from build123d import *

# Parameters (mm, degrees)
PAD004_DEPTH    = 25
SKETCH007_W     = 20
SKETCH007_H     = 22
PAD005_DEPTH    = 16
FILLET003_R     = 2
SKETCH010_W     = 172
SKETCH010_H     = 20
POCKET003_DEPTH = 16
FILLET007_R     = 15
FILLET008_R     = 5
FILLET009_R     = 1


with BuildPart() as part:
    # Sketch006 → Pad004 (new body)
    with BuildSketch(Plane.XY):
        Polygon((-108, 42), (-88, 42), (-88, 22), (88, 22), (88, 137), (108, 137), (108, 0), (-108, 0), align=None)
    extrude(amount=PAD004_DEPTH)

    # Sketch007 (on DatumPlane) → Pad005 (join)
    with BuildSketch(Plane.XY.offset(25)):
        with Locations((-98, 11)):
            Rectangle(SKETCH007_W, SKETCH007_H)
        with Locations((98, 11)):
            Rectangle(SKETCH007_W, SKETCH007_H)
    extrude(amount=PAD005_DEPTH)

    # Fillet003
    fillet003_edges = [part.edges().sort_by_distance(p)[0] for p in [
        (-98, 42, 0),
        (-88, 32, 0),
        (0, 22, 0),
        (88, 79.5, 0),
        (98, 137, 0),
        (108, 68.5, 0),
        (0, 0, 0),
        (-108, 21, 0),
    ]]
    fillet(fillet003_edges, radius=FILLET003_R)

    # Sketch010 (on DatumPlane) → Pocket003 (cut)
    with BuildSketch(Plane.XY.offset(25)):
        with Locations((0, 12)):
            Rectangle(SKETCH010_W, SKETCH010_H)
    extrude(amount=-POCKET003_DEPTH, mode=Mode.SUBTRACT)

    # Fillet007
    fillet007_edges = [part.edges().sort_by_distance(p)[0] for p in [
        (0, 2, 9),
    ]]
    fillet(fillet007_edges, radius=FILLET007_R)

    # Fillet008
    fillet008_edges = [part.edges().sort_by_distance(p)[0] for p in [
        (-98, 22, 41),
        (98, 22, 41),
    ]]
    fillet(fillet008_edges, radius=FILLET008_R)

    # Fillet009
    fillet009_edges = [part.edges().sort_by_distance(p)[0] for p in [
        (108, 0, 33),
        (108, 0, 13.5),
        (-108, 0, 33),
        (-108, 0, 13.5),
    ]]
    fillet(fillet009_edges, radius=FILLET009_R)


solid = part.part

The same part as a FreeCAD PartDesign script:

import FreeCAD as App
import Part
import Sketcher
from FreeCAD import Vector
Q = App.Units.Quantity


def edges_at(feature, points):
    """Names of the edges that pass closest to the given points."""
    edges = feature.Shape.Edges
    near = lambda p: min(range(len(edges)), key=lambda i: edges[i].distToShape(Part.Vertex(*p))[0])
    return sorted({f"Edge{near(p) + 1}" for p in points})

doc = App.newDocument("Part")
body = doc.addObject("PartDesign::Body", "Body")

sketch1 = body.newObject("Sketcher::SketchObject", "Sketch")
sketch1.AttachmentSupport = (doc.getObject("XY_Plane"), [""])
sketch1.MapMode = "FlatFace"
sketch1.addGeometry([
    Part.LineSegment(Vector(-88, 42, 0), Vector(-108, 42, 0)),
    Part.LineSegment(Vector(-108, 42, 0), Vector(-108, 0, 0)),
    Part.LineSegment(Vector(-108, 0, 0), Vector(108, 0, 0)),
    Part.LineSegment(Vector(108, 0, 0), Vector(108, 137, 0)),
    Part.LineSegment(Vector(108, 137, 0), Vector(88, 137, 0)),
    Part.LineSegment(Vector(88, 137, 0), Vector(88, 22, 0)),
    Part.LineSegment(Vector(88, 22, 0), Vector(-88, 22, 0)),
    Part.LineSegment(Vector(-88, 22, 0), Vector(-88, 42, 0)),
], False)
sketch1.addConstraint([
    Sketcher.Constraint("Coincident", 0, 2, 1, 1),
    Sketcher.Constraint("Coincident", 1, 2, 2, 1),
    Sketcher.Constraint("Coincident", 2, 2, 3, 1),
    Sketcher.Constraint("Coincident", 3, 2, 4, 1),
    Sketcher.Constraint("Coincident", 4, 2, 5, 1),
    Sketcher.Constraint("Coincident", 5, 2, 6, 1),
    Sketcher.Constraint("Coincident", 6, 2, 7, 1),
    Sketcher.Constraint("Coincident", 7, 2, 0, 1),
    Sketcher.Constraint("Horizontal", 0),
    Sketcher.Constraint("Vertical", 1),
    Sketcher.Constraint("Horizontal", 2),
    Sketcher.Constraint("Vertical", 3),
    Sketcher.Constraint("Horizontal", 4),
    Sketcher.Constraint("Vertical", 5),
    Sketcher.Constraint("Horizontal", 6),
    Sketcher.Constraint("Vertical", 7),
    Sketcher.Constraint("Symmetric", 1, 2, 2, 2, -1, 1),
    Sketcher.Constraint("Equal", 0, 4),
    Sketcher.Constraint("Equal", 4, 7),
    Sketcher.Constraint("DistanceX", 0, 2, 0, 1, Q("20 mm")),
    Sketcher.Constraint("DistanceX", 2, 1, 2, 2, Q("216 mm")),
    Sketcher.Constraint("DistanceY", 1, 2, 1, 1, Q("42 mm")),
    Sketcher.Constraint("DistanceY", 3, 1, 3, 2, Q("137 mm")),
])
pad1 = body.newObject("PartDesign::Pad", "Pad")
pad1.Profile = sketch1
pad1.Length = 25

sketch2 = body.newObject("Sketcher::SketchObject", "Sketch001")
sketch2.AttachmentSupport = (doc.getObject("XY_Plane"), [""])
sketch2.MapMode = "FlatFace"
sketch2.AttachmentOffset = App.Placement(Vector(0, 0, 25), App.Rotation())
sketch2.addGeometry([
    Part.LineSegment(Vector(-108, 22, 0), Vector(-108, 0, 0)),
    Part.LineSegment(Vector(-108, 0, 0), Vector(-88, 0, 0)),
    Part.LineSegment(Vector(-88, 0, 0), Vector(-88, 22, 0)),
    Part.LineSegment(Vector(-88, 22, 0), Vector(-108, 22, 0)),
    Part.LineSegment(Vector(88, 22, 0), Vector(88, 0, 0)),
    Part.LineSegment(Vector(88, 0, 0), Vector(108, 0, 0)),
    Part.LineSegment(Vector(108, 0, 0), Vector(108, 22, 0)),
    Part.LineSegment(Vector(108, 22, 0), Vector(88, 22, 0)),
], False)
sketch2.addConstraint([
    Sketcher.Constraint("Coincident", 0, 2, 1, 1),
    Sketcher.Constraint("Coincident", 1, 2, 2, 1),
    Sketcher.Constraint("Coincident", 2, 2, 3, 1),
    Sketcher.Constraint("Coincident", 3, 2, 0, 1),
    Sketcher.Constraint("Coincident", 4, 2, 5, 1),
    Sketcher.Constraint("Coincident", 5, 2, 6, 1),
    Sketcher.Constraint("Coincident", 6, 2, 7, 1),
    Sketcher.Constraint("Coincident", 7, 2, 4, 1),
    Sketcher.Constraint("Vertical", 0),
    Sketcher.Constraint("Horizontal", 1),
    Sketcher.Constraint("Vertical", 2),
    Sketcher.Constraint("Horizontal", 3),
    Sketcher.Constraint("Vertical", 4),
    Sketcher.Constraint("Horizontal", 5),
    Sketcher.Constraint("Vertical", 6),
    Sketcher.Constraint("Horizontal", 7),
    Sketcher.Constraint("Symmetric", 1, 2, 4, 2, -1, 1),
    Sketcher.Constraint("Symmetric", 0, 2, 5, 2, -2),
    Sketcher.Constraint("Horizontal", 3, 2, 6, 2),
    Sketcher.Constraint("DistanceX", 1, 1, 1, 2, Q("20 mm")),
    Sketcher.Constraint("DistanceY", 0, 2, 0, 1, Q("22 mm")),
    Sketcher.Constraint("DistanceX", 0, 2, -1, 1, Q("108 mm")),
])
pad2 = body.newObject("PartDesign::Pad", "Pad001")
pad2.Profile = sketch2
pad2.Length = 16
doc.recompute()

fillet = body.newObject("PartDesign::Fillet", "Fillet")
fillet.Base = (pad2, edges_at(pad2, [
    (-98, 42, 0),
    (-88, 32, 0),
    (0, 22, 0),
    (88, 79.5, 0),
    (98, 137, 0),
    (108, 68.5, 0),
    (0, 0, 0),
    (-108, 21, 0),
]))
fillet.Radius = 2

sketch3 = body.newObject("Sketcher::SketchObject", "Sketch002")
sketch3.AttachmentSupport = (doc.getObject("XY_Plane"), [""])
sketch3.MapMode = "FlatFace"
sketch3.AttachmentOffset = App.Placement(Vector(0, 0, 25), App.Rotation())
sketch3.addGeometry([
    Part.LineSegment(Vector(-86, 22, 0), Vector(-86, 2, 0)),
    Part.LineSegment(Vector(-86, 2, 0), Vector(86, 2, 0)),
    Part.LineSegment(Vector(86, 2, 0), Vector(86, 22, 0)),
    Part.LineSegment(Vector(86, 22, 0), Vector(-86, 22, 0)),
], False)
sketch3.addConstraint([
    Sketcher.Constraint("Coincident", 0, 2, 1, 1),
    Sketcher.Constraint("Coincident", 1, 2, 2, 1),
    Sketcher.Constraint("Coincident", 2, 2, 3, 1),
    Sketcher.Constraint("Coincident", 3, 2, 0, 1),
    Sketcher.Constraint("Vertical", 0),
    Sketcher.Constraint("Horizontal", 1),
    Sketcher.Constraint("Vertical", 2),
    Sketcher.Constraint("Horizontal", 3),
    Sketcher.Constraint("DistanceX", 1, 1, 1, 2, Q("172 mm")),
    Sketcher.Constraint("DistanceY", 0, 2, 0, 1, Q("20 mm")),
    Sketcher.Constraint("DistanceX", 0, 2, -1, 1, Q("86 mm")),
    Sketcher.Constraint("DistanceY", -1, 1, 0, 2, Q("2 mm")),
])
pocket1 = body.newObject("PartDesign::Pocket", "Pocket")
pocket1.Profile = sketch3
pocket1.Length = 16
doc.recompute()

fillet2 = body.newObject("PartDesign::Fillet", "Fillet001")
fillet2.Base = (pocket1, edges_at(pocket1, [(0, 2, 9)]))
fillet2.Radius = 15
doc.recompute()

fillet3 = body.newObject("PartDesign::Fillet", "Fillet002")
fillet3.Base = (fillet2, edges_at(fillet2, [(-98, 22, 41), (98, 22, 41)]))
fillet3.Radius = 5
doc.recompute()

fillet4 = body.newObject("PartDesign::Fillet", "Fillet003")
fillet4.Base = (fillet3, edges_at(fillet3, [
    (108, 0, 21.5),
    (108, 0, 21.5),
    (-108, 0, 21.5),
    (-108, 0, 21.5),
]))
fillet4.Radius = 1

doc.recompute()
